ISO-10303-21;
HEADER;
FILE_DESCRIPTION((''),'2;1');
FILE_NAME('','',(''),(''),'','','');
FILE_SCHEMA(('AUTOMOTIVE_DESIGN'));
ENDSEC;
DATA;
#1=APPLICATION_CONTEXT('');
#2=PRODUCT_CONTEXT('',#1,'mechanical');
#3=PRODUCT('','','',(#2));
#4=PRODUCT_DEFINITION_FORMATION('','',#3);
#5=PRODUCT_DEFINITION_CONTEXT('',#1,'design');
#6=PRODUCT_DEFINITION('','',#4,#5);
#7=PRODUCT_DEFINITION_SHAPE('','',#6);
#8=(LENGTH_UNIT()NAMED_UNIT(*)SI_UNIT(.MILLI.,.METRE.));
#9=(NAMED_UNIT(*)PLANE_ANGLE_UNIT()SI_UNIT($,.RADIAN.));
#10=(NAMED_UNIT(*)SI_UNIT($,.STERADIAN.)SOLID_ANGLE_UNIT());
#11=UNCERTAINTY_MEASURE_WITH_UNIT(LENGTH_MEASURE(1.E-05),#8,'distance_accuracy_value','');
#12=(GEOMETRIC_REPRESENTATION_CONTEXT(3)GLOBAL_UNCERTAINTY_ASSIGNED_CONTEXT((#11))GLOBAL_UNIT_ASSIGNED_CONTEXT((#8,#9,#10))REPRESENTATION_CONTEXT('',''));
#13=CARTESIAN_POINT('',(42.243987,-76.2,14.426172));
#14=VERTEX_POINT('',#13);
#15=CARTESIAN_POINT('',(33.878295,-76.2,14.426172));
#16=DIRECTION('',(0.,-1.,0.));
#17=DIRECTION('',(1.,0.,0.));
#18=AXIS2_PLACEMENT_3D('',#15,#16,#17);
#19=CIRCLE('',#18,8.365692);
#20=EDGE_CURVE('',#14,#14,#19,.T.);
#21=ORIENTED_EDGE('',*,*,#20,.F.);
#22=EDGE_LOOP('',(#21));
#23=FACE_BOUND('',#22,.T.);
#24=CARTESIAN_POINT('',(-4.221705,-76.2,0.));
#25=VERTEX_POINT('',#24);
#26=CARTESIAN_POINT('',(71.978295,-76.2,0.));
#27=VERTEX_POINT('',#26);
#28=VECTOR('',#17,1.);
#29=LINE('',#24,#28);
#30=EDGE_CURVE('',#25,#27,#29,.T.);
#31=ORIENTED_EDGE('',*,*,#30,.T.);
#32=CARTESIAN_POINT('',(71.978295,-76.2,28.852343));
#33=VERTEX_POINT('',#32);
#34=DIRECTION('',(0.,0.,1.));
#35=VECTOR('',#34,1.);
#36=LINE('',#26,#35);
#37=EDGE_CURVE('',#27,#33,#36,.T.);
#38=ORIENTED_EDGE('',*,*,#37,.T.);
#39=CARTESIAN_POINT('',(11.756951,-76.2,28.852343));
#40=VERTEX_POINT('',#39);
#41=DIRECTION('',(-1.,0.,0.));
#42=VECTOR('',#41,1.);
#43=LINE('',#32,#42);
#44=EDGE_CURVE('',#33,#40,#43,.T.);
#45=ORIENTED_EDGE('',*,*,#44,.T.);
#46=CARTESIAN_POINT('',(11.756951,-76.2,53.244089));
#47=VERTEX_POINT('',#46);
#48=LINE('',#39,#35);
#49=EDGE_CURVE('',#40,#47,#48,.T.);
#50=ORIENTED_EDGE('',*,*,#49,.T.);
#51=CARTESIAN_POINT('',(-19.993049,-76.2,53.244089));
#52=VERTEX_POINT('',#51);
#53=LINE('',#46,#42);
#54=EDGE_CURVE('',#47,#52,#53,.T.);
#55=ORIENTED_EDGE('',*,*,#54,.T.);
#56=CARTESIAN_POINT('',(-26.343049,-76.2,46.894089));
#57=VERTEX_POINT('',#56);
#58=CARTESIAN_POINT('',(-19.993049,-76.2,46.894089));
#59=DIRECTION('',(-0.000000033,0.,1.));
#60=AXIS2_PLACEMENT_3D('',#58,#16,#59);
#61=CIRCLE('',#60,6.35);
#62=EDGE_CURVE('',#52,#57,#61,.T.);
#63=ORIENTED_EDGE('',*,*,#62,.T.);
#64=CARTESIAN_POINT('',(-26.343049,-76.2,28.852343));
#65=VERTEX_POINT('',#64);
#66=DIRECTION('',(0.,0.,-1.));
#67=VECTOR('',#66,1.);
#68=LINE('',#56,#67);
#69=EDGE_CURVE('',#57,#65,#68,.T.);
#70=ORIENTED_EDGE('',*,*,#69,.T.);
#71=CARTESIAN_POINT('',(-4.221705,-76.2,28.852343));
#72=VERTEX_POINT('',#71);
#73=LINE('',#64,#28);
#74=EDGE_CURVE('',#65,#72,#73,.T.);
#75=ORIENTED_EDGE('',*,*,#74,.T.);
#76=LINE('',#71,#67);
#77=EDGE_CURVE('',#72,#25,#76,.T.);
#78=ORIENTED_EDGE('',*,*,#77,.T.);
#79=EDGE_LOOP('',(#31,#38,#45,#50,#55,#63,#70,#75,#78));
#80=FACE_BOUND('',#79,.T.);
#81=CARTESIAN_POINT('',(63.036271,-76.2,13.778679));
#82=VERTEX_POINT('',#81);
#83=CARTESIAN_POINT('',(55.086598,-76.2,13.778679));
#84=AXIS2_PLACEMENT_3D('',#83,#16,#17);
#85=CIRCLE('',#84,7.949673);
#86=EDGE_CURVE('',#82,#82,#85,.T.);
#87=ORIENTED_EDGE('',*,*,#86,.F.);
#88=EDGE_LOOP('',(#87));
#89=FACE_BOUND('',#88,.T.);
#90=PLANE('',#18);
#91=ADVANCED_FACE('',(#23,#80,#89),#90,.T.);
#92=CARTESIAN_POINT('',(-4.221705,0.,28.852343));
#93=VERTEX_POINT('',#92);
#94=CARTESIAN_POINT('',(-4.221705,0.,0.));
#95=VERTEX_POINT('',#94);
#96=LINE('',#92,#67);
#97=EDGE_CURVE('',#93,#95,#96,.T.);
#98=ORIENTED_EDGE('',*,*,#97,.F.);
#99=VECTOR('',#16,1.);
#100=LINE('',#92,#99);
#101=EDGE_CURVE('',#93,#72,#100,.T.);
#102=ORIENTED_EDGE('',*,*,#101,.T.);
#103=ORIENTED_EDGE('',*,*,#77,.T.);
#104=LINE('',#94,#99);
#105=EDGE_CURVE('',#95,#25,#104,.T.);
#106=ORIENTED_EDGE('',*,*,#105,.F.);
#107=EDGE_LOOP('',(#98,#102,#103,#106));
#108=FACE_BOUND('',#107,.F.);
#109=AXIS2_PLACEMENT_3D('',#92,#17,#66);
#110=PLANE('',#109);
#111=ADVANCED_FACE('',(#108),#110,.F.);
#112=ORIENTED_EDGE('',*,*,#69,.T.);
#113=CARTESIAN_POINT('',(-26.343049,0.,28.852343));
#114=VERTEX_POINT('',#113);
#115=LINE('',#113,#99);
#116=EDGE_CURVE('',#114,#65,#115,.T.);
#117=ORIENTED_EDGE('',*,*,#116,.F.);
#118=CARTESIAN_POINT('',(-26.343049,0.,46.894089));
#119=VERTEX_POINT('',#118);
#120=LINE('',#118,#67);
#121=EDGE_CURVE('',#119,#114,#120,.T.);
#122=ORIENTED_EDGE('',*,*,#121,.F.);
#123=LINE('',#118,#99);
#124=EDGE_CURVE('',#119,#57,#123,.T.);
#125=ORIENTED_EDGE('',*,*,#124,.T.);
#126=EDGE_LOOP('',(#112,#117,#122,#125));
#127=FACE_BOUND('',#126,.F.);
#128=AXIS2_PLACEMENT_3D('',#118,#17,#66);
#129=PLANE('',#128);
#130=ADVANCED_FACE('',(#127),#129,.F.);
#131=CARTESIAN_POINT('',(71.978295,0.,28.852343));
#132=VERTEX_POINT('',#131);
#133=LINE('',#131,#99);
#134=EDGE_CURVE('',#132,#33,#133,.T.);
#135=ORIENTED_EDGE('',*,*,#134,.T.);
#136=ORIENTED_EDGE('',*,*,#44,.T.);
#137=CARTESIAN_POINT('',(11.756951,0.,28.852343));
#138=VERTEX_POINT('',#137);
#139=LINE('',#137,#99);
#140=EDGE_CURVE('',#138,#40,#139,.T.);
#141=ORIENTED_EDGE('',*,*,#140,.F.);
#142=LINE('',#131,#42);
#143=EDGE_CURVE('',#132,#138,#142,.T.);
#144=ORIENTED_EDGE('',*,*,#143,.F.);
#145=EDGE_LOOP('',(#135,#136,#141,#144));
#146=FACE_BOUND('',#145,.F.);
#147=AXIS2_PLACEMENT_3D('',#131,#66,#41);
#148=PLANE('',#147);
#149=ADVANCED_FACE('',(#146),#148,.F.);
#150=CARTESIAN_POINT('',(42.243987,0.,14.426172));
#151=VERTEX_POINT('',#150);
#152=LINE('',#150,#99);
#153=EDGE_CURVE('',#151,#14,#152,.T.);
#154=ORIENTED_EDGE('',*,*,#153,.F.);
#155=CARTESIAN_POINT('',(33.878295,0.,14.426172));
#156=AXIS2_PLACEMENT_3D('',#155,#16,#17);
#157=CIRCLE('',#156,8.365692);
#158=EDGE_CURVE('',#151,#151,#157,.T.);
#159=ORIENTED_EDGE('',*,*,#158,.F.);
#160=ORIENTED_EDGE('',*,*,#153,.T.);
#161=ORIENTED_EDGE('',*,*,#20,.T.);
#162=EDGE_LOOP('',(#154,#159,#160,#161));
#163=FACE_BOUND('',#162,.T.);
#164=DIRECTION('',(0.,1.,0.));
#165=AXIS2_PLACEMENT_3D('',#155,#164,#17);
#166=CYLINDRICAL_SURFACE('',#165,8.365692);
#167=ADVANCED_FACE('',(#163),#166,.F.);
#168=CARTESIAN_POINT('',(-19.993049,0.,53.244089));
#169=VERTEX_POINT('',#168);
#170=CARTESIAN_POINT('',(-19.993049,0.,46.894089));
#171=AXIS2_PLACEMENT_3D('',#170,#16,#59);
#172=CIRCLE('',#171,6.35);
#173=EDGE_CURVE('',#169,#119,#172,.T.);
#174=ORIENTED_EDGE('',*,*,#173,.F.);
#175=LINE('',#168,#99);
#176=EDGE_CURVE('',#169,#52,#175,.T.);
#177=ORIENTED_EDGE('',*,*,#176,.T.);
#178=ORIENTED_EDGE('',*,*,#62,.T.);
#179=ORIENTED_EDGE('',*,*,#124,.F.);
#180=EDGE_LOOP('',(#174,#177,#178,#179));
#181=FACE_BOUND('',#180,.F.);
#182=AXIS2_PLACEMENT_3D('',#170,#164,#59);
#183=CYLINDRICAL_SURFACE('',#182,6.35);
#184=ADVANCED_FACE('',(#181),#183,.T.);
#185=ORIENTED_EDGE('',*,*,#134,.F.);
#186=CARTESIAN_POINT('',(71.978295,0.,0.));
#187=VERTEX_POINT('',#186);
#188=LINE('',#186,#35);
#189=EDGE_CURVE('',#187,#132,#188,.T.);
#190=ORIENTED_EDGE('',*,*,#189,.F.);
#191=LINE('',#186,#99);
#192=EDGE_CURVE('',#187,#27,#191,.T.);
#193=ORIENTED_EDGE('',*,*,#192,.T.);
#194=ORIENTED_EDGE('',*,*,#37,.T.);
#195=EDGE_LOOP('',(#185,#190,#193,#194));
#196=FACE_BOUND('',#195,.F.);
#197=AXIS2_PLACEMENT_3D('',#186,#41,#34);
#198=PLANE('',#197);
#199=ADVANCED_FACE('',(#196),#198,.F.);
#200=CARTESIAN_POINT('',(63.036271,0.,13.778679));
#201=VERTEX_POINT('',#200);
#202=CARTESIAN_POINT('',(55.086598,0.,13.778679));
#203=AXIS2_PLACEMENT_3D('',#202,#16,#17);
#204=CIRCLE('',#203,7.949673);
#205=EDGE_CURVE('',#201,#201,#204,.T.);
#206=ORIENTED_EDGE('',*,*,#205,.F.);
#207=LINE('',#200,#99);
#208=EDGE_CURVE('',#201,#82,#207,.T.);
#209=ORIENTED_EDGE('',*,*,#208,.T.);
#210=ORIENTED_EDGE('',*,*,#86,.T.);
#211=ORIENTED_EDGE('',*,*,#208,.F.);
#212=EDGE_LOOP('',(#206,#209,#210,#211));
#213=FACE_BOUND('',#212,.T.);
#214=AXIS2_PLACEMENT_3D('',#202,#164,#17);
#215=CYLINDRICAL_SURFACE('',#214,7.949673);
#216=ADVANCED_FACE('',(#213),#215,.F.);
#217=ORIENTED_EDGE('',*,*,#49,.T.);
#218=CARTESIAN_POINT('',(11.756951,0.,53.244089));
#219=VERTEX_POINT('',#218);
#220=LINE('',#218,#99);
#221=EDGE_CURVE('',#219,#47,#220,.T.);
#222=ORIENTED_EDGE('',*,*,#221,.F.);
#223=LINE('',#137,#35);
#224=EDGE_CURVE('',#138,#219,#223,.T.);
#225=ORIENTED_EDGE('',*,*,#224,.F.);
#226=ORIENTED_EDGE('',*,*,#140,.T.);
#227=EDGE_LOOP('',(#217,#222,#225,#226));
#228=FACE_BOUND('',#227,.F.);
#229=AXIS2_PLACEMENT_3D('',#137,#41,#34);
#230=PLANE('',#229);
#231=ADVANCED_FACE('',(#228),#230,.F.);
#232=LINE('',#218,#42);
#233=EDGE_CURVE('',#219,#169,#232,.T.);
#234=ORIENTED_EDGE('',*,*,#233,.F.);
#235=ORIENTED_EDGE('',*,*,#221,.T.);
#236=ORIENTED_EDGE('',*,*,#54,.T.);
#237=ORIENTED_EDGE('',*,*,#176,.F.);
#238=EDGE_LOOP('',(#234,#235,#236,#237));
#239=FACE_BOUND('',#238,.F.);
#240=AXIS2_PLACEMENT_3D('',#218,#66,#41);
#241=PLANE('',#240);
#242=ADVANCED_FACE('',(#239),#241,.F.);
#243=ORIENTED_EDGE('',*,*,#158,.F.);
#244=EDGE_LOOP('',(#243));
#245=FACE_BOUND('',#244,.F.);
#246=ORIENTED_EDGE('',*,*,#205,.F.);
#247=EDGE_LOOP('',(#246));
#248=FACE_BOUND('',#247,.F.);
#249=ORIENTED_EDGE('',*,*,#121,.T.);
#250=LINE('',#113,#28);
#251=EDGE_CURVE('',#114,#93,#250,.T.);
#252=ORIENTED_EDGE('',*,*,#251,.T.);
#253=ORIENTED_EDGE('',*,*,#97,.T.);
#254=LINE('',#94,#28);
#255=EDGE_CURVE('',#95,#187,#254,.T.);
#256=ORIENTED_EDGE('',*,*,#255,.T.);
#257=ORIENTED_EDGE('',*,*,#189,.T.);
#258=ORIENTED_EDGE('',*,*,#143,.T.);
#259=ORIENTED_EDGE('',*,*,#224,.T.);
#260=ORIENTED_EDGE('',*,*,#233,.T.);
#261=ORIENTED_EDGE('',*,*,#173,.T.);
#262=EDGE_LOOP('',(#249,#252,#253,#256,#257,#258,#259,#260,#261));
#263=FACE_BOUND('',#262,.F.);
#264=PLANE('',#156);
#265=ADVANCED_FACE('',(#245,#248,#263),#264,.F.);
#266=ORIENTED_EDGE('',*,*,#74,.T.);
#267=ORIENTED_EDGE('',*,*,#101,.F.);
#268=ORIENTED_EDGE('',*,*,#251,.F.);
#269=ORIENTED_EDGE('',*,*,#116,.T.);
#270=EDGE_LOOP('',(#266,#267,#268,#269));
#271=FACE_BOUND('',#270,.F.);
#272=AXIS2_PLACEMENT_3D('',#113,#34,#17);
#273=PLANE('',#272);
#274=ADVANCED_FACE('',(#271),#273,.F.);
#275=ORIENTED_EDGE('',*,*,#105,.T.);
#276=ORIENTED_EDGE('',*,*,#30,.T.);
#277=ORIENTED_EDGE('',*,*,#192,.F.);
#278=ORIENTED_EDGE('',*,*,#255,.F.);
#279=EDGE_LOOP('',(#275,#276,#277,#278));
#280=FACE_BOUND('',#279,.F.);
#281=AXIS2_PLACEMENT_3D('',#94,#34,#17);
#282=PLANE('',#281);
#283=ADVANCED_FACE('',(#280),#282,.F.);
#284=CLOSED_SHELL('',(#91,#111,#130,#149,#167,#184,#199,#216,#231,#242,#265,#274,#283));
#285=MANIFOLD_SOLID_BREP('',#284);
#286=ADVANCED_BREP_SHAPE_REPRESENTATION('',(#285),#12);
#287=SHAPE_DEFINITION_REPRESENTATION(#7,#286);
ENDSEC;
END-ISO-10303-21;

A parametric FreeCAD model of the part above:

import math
import FreeCAD as App
import Part
import Sketcher
from FreeCAD import Vector
Q = App.Units.Quantity

doc = App.newDocument("Part")
body = doc.addObject("PartDesign::Body", "Body")

sketch1 = body.newObject("Sketcher::SketchObject", "Sketch")
sketch1.AttachmentSupport = (doc.getObject("XZ_Plane"), [""])
sketch1.MapMode = "FlatFace"
sketch1.addGeometry([
    Part.LineSegment(Vector(-4, 29, 0), Vector(-4, 0, 0)),
    Part.LineSegment(Vector(-4, 0, 0), Vector(72, 0, 0)),
    Part.LineSegment(Vector(72, 0, 0), Vector(72, 29, 0)),
    Part.LineSegment(Vector(72, 29, 0), Vector(12, 29, 0)),
    Part.LineSegment(Vector(12, 29, 0), Vector(12, 53, 0)),
    Part.LineSegment(Vector(12, 53, 0), Vector(-20, 53, 0)),
    Part.ArcOfCircle(Part.Circle(Vector(-20, 47, 0), Vector(0, 0, 1), 6), math.radians(90), math.radians(180)),
    Part.LineSegment(Vector(-26, 47, 0), Vector(-26, 29, 0)),
    Part.LineSegment(Vector(-26, 29, 0), Vector(-4, 29, 0)),
    Part.Circle(Vector(55, 14, 0), Vector(0, 0, 1), 8),
    Part.Circle(Vector(34, 14, 0), Vector(0, 0, 1), 8),
], False)
sketch1.addConstraint([
    Sketcher.Constraint("Coincident", 0, 2, 1, 1),
    Sketcher.Constraint("Coincident", 1, 2, 2, 1),
    Sketcher.Constraint("Coincident", 2, 2, 3, 1),
    Sketcher.Constraint("Coincident", 3, 2, 4, 1),
    Sketcher.Constraint("Coincident", 4, 2, 5, 1),
    Sketcher.Constraint("Tangent", 5, 2, 6, 1),
    Sketcher.Constraint("Tangent", 6, 2, 7, 1),
    Sketcher.Constraint("Coincident", 7, 2, 8, 1),
    Sketcher.Constraint("Coincident", 8, 2, 0, 1),
    Sketcher.Constraint("Vertical", 0),
    Sketcher.Constraint("Horizontal", 1),
    Sketcher.Constraint("Vertical", 2),
    Sketcher.Constraint("Horizontal", 3),
    Sketcher.Constraint("Vertical", 4),
    Sketcher.Constraint("Horizontal", 5),
    Sketcher.Constraint("Vertical", 7),
    Sketcher.Constraint("Horizontal", 8),
    Sketcher.Constraint("PointOnObject", 0, 2, -1),
    Sketcher.Constraint("Horizontal", 3, 2, 7, 2),
    Sketcher.Constraint("DistanceX", 1, 1, 1, 2, Q("3 in")),
    Sketcher.Constraint("Radius", 6, Q("0.25 in")),
    Sketcher.Constraint("DistanceX", 5, 2, 5, 1, Q("1.25 in")),
    Sketcher.Constraint("DistanceX", 0, 2, 10, 3, Q("1.5 in")),
    Sketcher.Constraint("Diameter", 9, 15.899346),
    Sketcher.Constraint("Diameter", 10, 16.731384),
    Sketcher.Constraint("DistanceX", -1, 1, 9, 3, 55.086598),
    Sketcher.Constraint("DistanceX", 3, 2, 3, 1, 60.221344),
    Sketcher.Constraint("DistanceY", 0, 2, 0, 1, 28.852343),
    Sketcher.Constraint("DistanceY", 4, 1, 4, 2, 24.391746),
    Sketcher.Constraint("DistanceX", 6, 3, -1, 1, 19.993049),
    Sketcher.Constraint("DistanceY", -1, 1, 9, 3, 13.778679),
    Sketcher.Constraint("DistanceY", -1, 1, 10, 3, 14.426172),
])
pad1 = body.newObject("PartDesign::Pad", "Pad")
pad1.Profile = sketch1
pad1.Length = Q("3 in")

doc.recompute()
